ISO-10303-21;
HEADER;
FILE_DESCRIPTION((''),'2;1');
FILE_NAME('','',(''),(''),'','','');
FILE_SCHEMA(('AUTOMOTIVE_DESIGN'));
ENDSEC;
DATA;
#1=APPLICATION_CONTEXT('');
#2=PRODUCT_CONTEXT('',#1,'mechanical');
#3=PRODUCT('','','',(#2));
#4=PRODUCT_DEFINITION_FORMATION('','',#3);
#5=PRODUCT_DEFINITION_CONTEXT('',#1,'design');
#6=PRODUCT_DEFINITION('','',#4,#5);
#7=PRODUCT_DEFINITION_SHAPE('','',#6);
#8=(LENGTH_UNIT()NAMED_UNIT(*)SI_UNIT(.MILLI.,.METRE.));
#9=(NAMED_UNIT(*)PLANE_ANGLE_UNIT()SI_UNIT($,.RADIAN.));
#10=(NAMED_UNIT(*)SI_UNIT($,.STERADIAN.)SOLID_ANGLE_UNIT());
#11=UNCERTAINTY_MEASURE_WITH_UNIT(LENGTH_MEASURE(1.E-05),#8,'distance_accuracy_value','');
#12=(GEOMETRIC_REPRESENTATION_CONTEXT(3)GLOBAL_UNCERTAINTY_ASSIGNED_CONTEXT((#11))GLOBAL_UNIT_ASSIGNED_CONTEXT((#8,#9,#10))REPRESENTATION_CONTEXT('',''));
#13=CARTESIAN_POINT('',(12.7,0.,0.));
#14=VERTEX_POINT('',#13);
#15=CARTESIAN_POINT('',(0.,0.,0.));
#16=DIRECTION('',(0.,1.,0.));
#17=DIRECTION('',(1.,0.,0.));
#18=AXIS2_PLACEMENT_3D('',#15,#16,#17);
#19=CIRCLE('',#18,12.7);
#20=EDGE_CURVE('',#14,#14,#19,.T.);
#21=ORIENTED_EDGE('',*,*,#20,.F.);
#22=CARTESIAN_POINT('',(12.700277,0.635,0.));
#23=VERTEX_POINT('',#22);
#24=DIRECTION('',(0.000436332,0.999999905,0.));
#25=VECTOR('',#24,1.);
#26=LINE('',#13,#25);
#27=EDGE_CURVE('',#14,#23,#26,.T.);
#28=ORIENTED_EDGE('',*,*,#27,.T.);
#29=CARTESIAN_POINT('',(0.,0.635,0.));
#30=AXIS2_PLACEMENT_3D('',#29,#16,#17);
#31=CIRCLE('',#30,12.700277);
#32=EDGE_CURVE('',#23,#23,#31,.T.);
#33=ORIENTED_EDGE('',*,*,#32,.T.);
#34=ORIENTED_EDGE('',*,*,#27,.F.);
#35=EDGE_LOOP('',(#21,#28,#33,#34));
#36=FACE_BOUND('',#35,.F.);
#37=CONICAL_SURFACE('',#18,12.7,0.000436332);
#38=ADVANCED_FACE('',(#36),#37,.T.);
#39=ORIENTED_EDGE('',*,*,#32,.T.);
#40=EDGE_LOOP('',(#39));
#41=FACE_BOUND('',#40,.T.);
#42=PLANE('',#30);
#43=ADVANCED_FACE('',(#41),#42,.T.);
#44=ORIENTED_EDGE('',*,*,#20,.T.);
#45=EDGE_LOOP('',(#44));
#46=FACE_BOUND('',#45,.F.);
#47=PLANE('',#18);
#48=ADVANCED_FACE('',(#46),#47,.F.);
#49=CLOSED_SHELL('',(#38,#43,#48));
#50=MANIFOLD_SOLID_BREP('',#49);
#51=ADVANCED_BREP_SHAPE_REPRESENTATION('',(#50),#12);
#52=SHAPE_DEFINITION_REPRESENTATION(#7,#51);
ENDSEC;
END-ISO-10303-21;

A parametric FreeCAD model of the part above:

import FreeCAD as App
import Part
import Sketcher
Q = App.Units.Quantity

doc = App.newDocument("Part")
body = doc.addObject("PartDesign::Body", "Body")

# Sketch on XZ plane
sketch1 = body.newObject("Sketcher::SketchObject", "Sketch")
sketch1.AttachmentSupport = (doc.getObject("XZ_Plane"), [""])
sketch1.MapMode = "FlatFace"
sketch1.addGeometry(Part.Circle(App.Vector(0, 0, 0), App.Vector(0, 0, 1), 13), False)
sketch1.addConstraint(Sketcher.Constraint("Coincident", 0, 3, -1, 1))
sketch1.addConstraint(Sketcher.Constraint("Diameter", 0, Q("1 in")))
pad1 = body.newObject("PartDesign::Pad", "Pad")
pad1.Profile = sketch1
pad1.Length = Q("0.025 in")
pad1.Reversed = True
pad1.TaperAngle = -0.025

doc.recompute()
